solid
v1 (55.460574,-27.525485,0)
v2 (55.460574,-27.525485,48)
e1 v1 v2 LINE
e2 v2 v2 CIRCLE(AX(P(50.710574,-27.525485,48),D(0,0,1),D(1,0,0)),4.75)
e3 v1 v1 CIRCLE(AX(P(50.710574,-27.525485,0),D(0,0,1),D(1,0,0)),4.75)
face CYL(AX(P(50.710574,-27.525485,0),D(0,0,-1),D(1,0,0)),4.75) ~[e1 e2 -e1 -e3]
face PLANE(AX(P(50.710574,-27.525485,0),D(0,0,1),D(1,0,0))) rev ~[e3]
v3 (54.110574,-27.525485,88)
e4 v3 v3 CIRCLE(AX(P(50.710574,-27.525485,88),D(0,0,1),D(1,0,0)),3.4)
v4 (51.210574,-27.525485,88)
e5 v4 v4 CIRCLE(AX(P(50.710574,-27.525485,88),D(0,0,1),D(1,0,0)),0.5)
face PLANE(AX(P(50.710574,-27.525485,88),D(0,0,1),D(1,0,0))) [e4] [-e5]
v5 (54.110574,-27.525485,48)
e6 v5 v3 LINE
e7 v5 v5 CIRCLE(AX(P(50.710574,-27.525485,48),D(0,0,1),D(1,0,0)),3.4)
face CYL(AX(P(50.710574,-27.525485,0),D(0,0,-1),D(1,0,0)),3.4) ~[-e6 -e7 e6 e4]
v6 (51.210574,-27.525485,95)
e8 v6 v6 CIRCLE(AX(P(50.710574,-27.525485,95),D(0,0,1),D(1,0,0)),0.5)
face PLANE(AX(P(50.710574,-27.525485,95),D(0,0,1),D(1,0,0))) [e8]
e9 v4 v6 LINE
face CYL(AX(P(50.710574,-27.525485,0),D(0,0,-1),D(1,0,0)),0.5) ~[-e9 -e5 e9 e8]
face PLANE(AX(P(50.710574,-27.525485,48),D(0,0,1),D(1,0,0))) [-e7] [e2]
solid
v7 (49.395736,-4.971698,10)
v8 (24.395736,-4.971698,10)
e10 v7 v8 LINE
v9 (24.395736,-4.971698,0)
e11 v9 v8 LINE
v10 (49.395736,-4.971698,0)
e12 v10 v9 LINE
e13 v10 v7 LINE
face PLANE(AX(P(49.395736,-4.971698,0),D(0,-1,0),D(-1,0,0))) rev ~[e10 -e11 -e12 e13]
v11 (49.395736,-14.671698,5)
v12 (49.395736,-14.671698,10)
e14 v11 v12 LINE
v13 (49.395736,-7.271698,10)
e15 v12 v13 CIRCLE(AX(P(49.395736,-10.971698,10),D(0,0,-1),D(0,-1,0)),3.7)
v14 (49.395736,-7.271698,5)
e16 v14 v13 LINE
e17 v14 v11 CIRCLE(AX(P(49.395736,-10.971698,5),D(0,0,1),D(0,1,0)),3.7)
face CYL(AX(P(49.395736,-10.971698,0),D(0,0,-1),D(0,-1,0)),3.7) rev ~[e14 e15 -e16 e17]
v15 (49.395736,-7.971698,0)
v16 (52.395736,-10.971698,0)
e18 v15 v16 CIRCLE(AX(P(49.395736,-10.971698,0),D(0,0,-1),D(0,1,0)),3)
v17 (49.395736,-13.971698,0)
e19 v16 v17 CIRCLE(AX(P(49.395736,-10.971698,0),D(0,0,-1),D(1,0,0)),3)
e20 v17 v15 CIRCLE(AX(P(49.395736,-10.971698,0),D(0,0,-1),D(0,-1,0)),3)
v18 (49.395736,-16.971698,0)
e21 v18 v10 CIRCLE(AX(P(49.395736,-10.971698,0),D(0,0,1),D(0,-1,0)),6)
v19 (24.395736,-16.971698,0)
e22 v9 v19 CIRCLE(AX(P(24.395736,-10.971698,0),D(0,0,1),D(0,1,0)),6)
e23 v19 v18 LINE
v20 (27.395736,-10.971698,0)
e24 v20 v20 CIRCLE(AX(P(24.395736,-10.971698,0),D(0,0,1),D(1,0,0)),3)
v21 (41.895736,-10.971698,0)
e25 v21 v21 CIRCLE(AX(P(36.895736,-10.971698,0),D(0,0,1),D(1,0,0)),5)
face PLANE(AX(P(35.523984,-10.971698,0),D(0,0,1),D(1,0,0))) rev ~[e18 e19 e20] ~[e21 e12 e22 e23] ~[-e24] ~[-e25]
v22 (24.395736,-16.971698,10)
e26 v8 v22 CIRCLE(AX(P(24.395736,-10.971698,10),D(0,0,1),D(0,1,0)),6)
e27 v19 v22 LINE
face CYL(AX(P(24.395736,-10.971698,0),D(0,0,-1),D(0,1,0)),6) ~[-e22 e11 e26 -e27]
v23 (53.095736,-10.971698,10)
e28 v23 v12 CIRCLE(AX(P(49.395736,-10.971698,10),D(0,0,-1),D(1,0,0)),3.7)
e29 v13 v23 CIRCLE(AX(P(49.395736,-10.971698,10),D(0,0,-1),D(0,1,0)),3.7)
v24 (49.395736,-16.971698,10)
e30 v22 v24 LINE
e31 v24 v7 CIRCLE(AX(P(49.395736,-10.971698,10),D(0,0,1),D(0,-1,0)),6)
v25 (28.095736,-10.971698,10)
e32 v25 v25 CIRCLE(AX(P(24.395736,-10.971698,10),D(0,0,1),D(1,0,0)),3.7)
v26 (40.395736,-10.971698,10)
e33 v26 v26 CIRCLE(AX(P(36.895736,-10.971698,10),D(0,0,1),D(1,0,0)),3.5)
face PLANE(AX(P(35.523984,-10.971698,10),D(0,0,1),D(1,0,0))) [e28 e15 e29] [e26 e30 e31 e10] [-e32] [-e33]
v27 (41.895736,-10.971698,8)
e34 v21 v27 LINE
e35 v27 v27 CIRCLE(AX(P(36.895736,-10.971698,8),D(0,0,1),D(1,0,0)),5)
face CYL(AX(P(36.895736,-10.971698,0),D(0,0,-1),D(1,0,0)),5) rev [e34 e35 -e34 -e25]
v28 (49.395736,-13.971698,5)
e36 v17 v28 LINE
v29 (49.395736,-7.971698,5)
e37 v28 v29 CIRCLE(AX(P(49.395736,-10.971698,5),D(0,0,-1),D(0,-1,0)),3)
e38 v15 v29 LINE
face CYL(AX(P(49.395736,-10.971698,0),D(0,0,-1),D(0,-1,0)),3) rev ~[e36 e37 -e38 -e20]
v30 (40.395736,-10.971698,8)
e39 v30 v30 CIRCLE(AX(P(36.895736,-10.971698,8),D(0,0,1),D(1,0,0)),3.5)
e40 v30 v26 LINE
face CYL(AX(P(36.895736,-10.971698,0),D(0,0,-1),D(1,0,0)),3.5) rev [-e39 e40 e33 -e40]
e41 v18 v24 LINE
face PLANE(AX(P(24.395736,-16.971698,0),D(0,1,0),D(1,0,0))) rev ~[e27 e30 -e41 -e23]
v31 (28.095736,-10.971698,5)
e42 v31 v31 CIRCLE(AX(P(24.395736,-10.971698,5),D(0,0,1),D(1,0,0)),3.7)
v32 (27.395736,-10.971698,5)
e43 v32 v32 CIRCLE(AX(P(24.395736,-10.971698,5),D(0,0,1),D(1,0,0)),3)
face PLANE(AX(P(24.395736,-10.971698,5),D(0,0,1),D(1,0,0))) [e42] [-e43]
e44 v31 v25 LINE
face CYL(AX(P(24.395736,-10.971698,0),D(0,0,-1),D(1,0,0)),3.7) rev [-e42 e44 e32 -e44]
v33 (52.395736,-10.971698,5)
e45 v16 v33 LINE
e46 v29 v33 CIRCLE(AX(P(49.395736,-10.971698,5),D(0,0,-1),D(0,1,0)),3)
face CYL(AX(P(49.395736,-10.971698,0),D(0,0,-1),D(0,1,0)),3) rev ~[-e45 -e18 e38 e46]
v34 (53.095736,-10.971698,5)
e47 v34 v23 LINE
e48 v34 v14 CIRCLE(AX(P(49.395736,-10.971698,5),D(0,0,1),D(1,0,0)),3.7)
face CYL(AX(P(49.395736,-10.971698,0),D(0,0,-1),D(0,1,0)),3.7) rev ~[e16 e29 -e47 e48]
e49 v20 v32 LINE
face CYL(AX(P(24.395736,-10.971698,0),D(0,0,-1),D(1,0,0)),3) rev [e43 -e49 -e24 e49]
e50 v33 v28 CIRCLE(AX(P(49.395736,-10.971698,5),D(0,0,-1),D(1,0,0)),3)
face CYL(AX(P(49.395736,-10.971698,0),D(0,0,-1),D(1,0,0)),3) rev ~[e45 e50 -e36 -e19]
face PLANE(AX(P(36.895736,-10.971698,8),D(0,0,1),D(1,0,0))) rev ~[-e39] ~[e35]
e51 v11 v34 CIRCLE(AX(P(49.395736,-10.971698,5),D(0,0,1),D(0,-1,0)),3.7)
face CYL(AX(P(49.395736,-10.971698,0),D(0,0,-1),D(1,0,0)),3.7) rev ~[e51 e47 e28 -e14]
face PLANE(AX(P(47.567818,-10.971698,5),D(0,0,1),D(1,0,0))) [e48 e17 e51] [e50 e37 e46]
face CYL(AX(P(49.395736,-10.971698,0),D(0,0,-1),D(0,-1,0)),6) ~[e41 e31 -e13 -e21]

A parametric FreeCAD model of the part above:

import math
import FreeCAD as App
import Part
import Sketcher

V = App.Vector
Q = App.Units.Quantity

doc = App.newDocument("Part")
body = doc.addObject("PartDesign::Body", "Body")

sketch1 = body.newObject("Sketcher::SketchObject", "Sketch")
sketch1.AttachmentSupport = (doc.getObject("XY_Plane"), [""])
sketch1.MapMode = "FlatFace"
sketch1.addGeometry(Part.Circle(V(50.7, -27.5, 0), V(0, 0, 1), 4.8), False)
sketch1.addGeometry(Part.Circle(V(50.7, -27.5, 0), V(0, 0, 1), 3.4), False)
sketch1.addConstraint(Sketcher.Constraint("Coincident", 1, 3, 0, 3))
sketch1.addConstraint(Sketcher.Constraint("Diameter", 0, Q("9.5 mm")))
sketch1.addConstraint(Sketcher.Constraint("Diameter", 1, Q("6.8 mm")))
sketch1.addConstraint(Sketcher.Constraint("DistanceX", -1, 1, 0, 3, Q("50.710574 mm")))
sketch1.addConstraint(Sketcher.Constraint("DistanceY", 0, 3, -1, 1, Q("27.525485 mm")))
pad1 = body.newObject("PartDesign::Pad", "Pad")
pad1.Profile = sketch1
pad1.Length = 48

sketch2 = body.newObject("Sketcher::SketchObject", "Sketch001")
sketch2.AttachmentSupport = (doc.getObject("XY_Plane"), [""])
sketch2.MapMode = "FlatFace"
sketch2.addGeometry(Part.Circle(V(50.7, -27.5, 0), V(0, 0, 1), 3.4), False)
sketch2.addGeometry(Part.Circle(V(50.7, -27.5, 0), V(0, 0, 1), 0.5), False)
sketch2.addConstraint(Sketcher.Constraint("Coincident", 1, 3, 0, 3))
sketch2.addConstraint(Sketcher.Constraint("Diameter", 1, Q("1 mm")))
sketch2.addConstraint(Sketcher.Constraint("Diameter", 0, Q("6.8 mm")))
sketch2.addConstraint(Sketcher.Constraint("DistanceX", -1, 1, 0, 3, Q("50.710574 mm")))
sketch2.addConstraint(Sketcher.Constraint("DistanceY", 0, 3, -1, 1, Q("27.525485 mm")))
pad2 = body.newObject("PartDesign::Pad", "Pad001")
pad2.Profile = sketch2
pad2.Length = 88

sketch3 = body.newObject("Sketcher::SketchObject", "Sketch002")
sketch3.AttachmentSupport = (doc.getObject("XY_Plane"), [""])
sketch3.MapMode = "FlatFace"
sketch3.addGeometry(Part.Circle(V(50.7, -27.5, 0), V(0, 0, 1), 0.5), False)
sketch3.addConstraint(Sketcher.Constraint("Diameter", 0, Q("1 mm")))
sketch3.addConstraint(Sketcher.Constraint("DistanceX", -1, 1, 0, 3, Q("50.710574 mm")))
sketch3.addConstraint(Sketcher.Constraint("DistanceY", 0, 3, -1, 1, Q("27.525485 mm")))
pad3 = body.newObject("PartDesign::Pad", "Pad002")
pad3.Profile = sketch3
pad3.Length = 95
body2 = doc.addObject("PartDesign::Body", "Body001")

sketch4 = body2.newObject("Sketcher::SketchObject", "Sketch003")
sketch4.AttachmentSupport = (doc.getObject("XY_Plane001"), [""])
sketch4.MapMode = "FlatFace"
sketch4.addGeometry(Part.Circle(V(24.4, -11, 0), V(0, 0, 1), 3.7), False)
sketch4.addGeometry(Part.Circle(V(24.4, -11, 0), V(0, 0, 1), 3), False)
sketch4.addConstraint(Sketcher.Constraint("Coincident", 1, 3, 0, 3))
sketch4.addConstraint(Sketcher.Constraint("Diameter", 1, Q("6 mm")))
sketch4.addConstraint(Sketcher.Constraint("Diameter", 0, Q("7.4 mm")))
sketch4.addConstraint(Sketcher.Constraint("DistanceY", 0, 3, -1, 1, Q("10.971698 mm")))
sketch4.addConstraint(Sketcher.Constraint("DistanceX", -1, 1, 0, 3, Q("24.395736 mm")))
pad4 = body2.newObject("PartDesign::Pad", "Pad003")
pad4.Profile = sketch4
pad4.Length = 5
body3 = doc.addObject("PartDesign::Body", "Body002")

sketch5 = body3.newObject("Sketcher::SketchObject", "Sketch004")
sketch5.AttachmentSupport = (doc.getObject("XY_Plane002"), [""])
sketch5.MapMode = "FlatFace"
sketch5.addGeometry(Part.ArcOfCircle(Part.Circle(V(49.4, -11, 0), V(0, 0, 1), 3.7), math.radians(90), math.radians(270)), False)
sketch5.addGeometry(Part.ArcOfCircle(Part.Circle(V(49.4, -11, 0), V(0, 0, 1), 3.7), math.radians(-90), math.radians(0)), False)
sketch5.addGeometry(Part.ArcOfCircle(Part.Circle(V(49.4, -11, 0), V(0, 0, 1), 3.7), math.radians(0), math.radians(90)), False)
sketch5.addGeometry(Part.ArcOfCircle(Part.Circle(V(49.4, -11, 0), V(0, 0, 1), 3), math.radians(90), math.radians(270)), False)
sketch5.addGeometry(Part.ArcOfCircle(Part.Circle(V(49.4, -11, 0), V(0, 0, 1), 3), math.radians(0), math.radians(90)), False)
sketch5.addGeometry(Part.ArcOfCircle(Part.Circle(V(49.4, -11, 0), V(0, 0, 1), 3), math.radians(-90), math.radians(0)), False)
sketch5.addConstraint(Sketcher.Constraint("Tangent", 0, 2, 1, 1))
sketch5.addConstraint(Sketcher.Constraint("Tangent", 1, 2, 2, 1))
sketch5.addConstraint(Sketcher.Constraint("Tangent", 2, 2, 0, 1))
sketch5.addConstraint(Sketcher.Constraint("Tangent", 3, 1, 4, 2))
sketch5.addConstraint(Sketcher.Constraint("Tangent", 4, 1, 5, 2))
sketch5.addConstraint(Sketcher.Constraint("Tangent", 5, 1, 3, 2))
sketch5.addConstraint(Sketcher.Constraint("Coincident", 3, 3, 0, 3))
sketch5.addConstraint(Sketcher.Constraint("Horizontal", 5, 3, 1, 2))
sketch5.addConstraint(Sketcher.Constraint("Horizontal", 1, 2, 4, 1))
sketch5.addConstraint(Sketcher.Constraint("Vertical", 5, 3, 0, 2))
sketch5.addConstraint(Sketcher.Constraint("Vertical", 0, 2, 2, 2))
sketch5.addConstraint(Sketcher.Constraint("Vertical", 2, 2, 3, 1))
sketch5.addConstraint(Sketcher.Constraint("Vertical", 3, 1, 5, 1))
sketch5.addConstraint(Sketcher.Constraint("Radius", 3, Q("3 mm")))
sketch5.addConstraint(Sketcher.Constraint("Radius", 0, Q("3.7 mm")))
sketch5.addConstraint(Sketcher.Constraint("DistanceY", 0, 3, -1, 1, Q("10.971698 mm")))
sketch5.addConstraint(Sketcher.Constraint("DistanceX", -1, 1, 0, 3, Q("49.395736 mm")))
pad5 = body3.newObject("PartDesign::Pad", "Pad004")
pad5.Profile = sketch5
pad5.Length = 5
body2.AllowCompound = True
doc.recompute()

boolean = body2.newObject("PartDesign::Boolean", "Boolean")
boolean.Type = "Fuse"
boolean.addObjects([body3])

sketch6 = body2.newObject("Sketcher::SketchObject", "Sketch005")
sketch6.AttachmentSupport = (doc.getObject("XY_Plane001"), [""])
sketch6.MapMode = "FlatFace"
sketch6.addGeometry(Part.ArcOfCircle(Part.Circle(V(24.4, -11, 0), V(0, 0, 1), 6), math.radians(90), math.radians(270)), False)
sketch6.addGeometry(Part.LineSegment(V(24.4, -17, 0), V(49.4, -17, 0)), False)
sketch6.addGeometry(Part.ArcOfCircle(Part.Circle(V(49.4, -11, 0), V(0, 0, 1), 6), math.radians(-90), math.radians(90)), False)
sketch6.addGeometry(Part.LineSegment(V(49.4, -5, 0), V(24.4, -5, 0)), False)
sketch6.addGeometry(Part.Circle(V(24.4, -11, 0), V(0, 0, 1), 3.7), False)
sketch6.addGeometry(Part.Circle(V(36.9, -11, 0), V(0, 0, 1), 3.5), False)
sketch6.addGeometry(Part.ArcOfCircle(Part.Circle(V(49.4, -11, 0), V(0, 0, 1), 3.7), math.radians(90), math.radians(270)), False)
sketch6.addGeometry(Part.ArcOfCircle(Part.Circle(V(49.4, -11, 0), V(0, 0, 1), 3.7), math.radians(0), math.radians(90)), False)
sketch6.addGeometry(Part.ArcOfCircle(Part.Circle(V(49.4, -11, 0), V(0, 0, 1), 3.7), math.radians(-90), math.radians(0)), False)
sketch6.addConstraint(Sketcher.Constraint("Tangent", 0, 2, 1, 1))
sketch6.addConstraint(Sketcher.Constraint("Tangent", 1, 2, 2, 1))
sketch6.addConstraint(Sketcher.Constraint("Tangent", 2, 2, 3, 1))
sketch6.addConstraint(Sketcher.Constraint("Tangent", 3, 2, 0, 1))
sketch6.addConstraint(Sketcher.Constraint("Tangent", 6, 1, 7, 2))
sketch6.addConstraint(Sketcher.Constraint("Tangent", 7, 1, 8, 2))
sketch6.addConstraint(Sketcher.Constraint("Tangent", 8, 1, 6, 2))
sketch6.addConstraint(Sketcher.Constraint("Horizontal", 1))
sketch6.addConstraint(Sketcher.Constraint("Horizontal", 3))
sketch6.addConstraint(Sketcher.Constraint("Coincident", 4, 3, 0, 3))
sketch6.addConstraint(Sketcher.Constraint("Coincident", 6, 3, 2, 3))
sketch6.addConstraint(Sketcher.Constraint("Equal", 4, 6))
sketch6.addConstraint(Sketcher.Constraint("Horizontal", 4, 3, 5, 3))
sketch6.addConstraint(Sketcher.Constraint("Horizontal", 8, 3, 7, 1))
sketch6.addConstraint(Sketcher.Constraint("Vertical", 2, 2, 6, 1))
sketch6.addConstraint(Sketcher.Constraint("Vertical", 6, 1, 8, 1))
sketch6.addConstraint(Sketcher.Constraint("Diameter", 5, Q("7 mm")))
sketch6.addConstraint(Sketcher.Constraint("Radius", 0, Q("6 mm")))
sketch6.addConstraint(Sketcher.Constraint("Diameter", 4, Q("7.4 mm")))
sketch6.addConstraint(Sketcher.Constraint("DistanceX", 1, 1, 1, 2, Q("25 mm")))
sketch6.addConstraint(Sketcher.Constraint("DistanceX", 0, 3, 5, 3, Q("12.5 mm")))
sketch6.addConstraint(Sketcher.Constraint("DistanceY", 0, 3, -1, 1, Q("10.971698 mm")))
sketch6.addConstraint(Sketcher.Constraint("DistanceX", -1, 1, 0, 3, Q("24.395736 mm")))
pad6 = body2.newObject("PartDesign::Pad", "Pad005")
pad6.Profile = sketch6
pad6.Length = 10

sketch7 = body2.newObject("Sketcher::SketchObject", "Sketch006")
sketch7.AttachmentSupport = (doc.getObject("XY_Plane001"), [""])
sketch7.MapMode = "FlatFace"
sketch7.addGeometry(Part.Circle(V(36.9, -11, 0), V(0, 0, 1), 5), False)
sketch7.addGeometry(Part.Circle(V(36.9, -11, 0), V(0, 0, 1), 3.5), False)
sketch7.addConstraint(Sketcher.Constraint("Coincident", 1, 3, 0, 3))
sketch7.addConstraint(Sketcher.Constraint("Diameter", 0, Q("10 mm")))
sketch7.addConstraint(Sketcher.Constraint("Diameter", 1, Q("7 mm")))
sketch7.addConstraint(Sketcher.Constraint("DistanceY", 0, 3, -1, 1, Q("10.971698 mm")))
sketch7.addConstraint(Sketcher.Constraint("DistanceX", -1, 1, 0, 3, Q("36.895736 mm")))
pocket1 = body2.newObject("PartDesign::Pocket", "Pocket")
pocket1.Profile = sketch7
pocket1.Length = 8
pocket1.Reversed = True

doc.recompute()
